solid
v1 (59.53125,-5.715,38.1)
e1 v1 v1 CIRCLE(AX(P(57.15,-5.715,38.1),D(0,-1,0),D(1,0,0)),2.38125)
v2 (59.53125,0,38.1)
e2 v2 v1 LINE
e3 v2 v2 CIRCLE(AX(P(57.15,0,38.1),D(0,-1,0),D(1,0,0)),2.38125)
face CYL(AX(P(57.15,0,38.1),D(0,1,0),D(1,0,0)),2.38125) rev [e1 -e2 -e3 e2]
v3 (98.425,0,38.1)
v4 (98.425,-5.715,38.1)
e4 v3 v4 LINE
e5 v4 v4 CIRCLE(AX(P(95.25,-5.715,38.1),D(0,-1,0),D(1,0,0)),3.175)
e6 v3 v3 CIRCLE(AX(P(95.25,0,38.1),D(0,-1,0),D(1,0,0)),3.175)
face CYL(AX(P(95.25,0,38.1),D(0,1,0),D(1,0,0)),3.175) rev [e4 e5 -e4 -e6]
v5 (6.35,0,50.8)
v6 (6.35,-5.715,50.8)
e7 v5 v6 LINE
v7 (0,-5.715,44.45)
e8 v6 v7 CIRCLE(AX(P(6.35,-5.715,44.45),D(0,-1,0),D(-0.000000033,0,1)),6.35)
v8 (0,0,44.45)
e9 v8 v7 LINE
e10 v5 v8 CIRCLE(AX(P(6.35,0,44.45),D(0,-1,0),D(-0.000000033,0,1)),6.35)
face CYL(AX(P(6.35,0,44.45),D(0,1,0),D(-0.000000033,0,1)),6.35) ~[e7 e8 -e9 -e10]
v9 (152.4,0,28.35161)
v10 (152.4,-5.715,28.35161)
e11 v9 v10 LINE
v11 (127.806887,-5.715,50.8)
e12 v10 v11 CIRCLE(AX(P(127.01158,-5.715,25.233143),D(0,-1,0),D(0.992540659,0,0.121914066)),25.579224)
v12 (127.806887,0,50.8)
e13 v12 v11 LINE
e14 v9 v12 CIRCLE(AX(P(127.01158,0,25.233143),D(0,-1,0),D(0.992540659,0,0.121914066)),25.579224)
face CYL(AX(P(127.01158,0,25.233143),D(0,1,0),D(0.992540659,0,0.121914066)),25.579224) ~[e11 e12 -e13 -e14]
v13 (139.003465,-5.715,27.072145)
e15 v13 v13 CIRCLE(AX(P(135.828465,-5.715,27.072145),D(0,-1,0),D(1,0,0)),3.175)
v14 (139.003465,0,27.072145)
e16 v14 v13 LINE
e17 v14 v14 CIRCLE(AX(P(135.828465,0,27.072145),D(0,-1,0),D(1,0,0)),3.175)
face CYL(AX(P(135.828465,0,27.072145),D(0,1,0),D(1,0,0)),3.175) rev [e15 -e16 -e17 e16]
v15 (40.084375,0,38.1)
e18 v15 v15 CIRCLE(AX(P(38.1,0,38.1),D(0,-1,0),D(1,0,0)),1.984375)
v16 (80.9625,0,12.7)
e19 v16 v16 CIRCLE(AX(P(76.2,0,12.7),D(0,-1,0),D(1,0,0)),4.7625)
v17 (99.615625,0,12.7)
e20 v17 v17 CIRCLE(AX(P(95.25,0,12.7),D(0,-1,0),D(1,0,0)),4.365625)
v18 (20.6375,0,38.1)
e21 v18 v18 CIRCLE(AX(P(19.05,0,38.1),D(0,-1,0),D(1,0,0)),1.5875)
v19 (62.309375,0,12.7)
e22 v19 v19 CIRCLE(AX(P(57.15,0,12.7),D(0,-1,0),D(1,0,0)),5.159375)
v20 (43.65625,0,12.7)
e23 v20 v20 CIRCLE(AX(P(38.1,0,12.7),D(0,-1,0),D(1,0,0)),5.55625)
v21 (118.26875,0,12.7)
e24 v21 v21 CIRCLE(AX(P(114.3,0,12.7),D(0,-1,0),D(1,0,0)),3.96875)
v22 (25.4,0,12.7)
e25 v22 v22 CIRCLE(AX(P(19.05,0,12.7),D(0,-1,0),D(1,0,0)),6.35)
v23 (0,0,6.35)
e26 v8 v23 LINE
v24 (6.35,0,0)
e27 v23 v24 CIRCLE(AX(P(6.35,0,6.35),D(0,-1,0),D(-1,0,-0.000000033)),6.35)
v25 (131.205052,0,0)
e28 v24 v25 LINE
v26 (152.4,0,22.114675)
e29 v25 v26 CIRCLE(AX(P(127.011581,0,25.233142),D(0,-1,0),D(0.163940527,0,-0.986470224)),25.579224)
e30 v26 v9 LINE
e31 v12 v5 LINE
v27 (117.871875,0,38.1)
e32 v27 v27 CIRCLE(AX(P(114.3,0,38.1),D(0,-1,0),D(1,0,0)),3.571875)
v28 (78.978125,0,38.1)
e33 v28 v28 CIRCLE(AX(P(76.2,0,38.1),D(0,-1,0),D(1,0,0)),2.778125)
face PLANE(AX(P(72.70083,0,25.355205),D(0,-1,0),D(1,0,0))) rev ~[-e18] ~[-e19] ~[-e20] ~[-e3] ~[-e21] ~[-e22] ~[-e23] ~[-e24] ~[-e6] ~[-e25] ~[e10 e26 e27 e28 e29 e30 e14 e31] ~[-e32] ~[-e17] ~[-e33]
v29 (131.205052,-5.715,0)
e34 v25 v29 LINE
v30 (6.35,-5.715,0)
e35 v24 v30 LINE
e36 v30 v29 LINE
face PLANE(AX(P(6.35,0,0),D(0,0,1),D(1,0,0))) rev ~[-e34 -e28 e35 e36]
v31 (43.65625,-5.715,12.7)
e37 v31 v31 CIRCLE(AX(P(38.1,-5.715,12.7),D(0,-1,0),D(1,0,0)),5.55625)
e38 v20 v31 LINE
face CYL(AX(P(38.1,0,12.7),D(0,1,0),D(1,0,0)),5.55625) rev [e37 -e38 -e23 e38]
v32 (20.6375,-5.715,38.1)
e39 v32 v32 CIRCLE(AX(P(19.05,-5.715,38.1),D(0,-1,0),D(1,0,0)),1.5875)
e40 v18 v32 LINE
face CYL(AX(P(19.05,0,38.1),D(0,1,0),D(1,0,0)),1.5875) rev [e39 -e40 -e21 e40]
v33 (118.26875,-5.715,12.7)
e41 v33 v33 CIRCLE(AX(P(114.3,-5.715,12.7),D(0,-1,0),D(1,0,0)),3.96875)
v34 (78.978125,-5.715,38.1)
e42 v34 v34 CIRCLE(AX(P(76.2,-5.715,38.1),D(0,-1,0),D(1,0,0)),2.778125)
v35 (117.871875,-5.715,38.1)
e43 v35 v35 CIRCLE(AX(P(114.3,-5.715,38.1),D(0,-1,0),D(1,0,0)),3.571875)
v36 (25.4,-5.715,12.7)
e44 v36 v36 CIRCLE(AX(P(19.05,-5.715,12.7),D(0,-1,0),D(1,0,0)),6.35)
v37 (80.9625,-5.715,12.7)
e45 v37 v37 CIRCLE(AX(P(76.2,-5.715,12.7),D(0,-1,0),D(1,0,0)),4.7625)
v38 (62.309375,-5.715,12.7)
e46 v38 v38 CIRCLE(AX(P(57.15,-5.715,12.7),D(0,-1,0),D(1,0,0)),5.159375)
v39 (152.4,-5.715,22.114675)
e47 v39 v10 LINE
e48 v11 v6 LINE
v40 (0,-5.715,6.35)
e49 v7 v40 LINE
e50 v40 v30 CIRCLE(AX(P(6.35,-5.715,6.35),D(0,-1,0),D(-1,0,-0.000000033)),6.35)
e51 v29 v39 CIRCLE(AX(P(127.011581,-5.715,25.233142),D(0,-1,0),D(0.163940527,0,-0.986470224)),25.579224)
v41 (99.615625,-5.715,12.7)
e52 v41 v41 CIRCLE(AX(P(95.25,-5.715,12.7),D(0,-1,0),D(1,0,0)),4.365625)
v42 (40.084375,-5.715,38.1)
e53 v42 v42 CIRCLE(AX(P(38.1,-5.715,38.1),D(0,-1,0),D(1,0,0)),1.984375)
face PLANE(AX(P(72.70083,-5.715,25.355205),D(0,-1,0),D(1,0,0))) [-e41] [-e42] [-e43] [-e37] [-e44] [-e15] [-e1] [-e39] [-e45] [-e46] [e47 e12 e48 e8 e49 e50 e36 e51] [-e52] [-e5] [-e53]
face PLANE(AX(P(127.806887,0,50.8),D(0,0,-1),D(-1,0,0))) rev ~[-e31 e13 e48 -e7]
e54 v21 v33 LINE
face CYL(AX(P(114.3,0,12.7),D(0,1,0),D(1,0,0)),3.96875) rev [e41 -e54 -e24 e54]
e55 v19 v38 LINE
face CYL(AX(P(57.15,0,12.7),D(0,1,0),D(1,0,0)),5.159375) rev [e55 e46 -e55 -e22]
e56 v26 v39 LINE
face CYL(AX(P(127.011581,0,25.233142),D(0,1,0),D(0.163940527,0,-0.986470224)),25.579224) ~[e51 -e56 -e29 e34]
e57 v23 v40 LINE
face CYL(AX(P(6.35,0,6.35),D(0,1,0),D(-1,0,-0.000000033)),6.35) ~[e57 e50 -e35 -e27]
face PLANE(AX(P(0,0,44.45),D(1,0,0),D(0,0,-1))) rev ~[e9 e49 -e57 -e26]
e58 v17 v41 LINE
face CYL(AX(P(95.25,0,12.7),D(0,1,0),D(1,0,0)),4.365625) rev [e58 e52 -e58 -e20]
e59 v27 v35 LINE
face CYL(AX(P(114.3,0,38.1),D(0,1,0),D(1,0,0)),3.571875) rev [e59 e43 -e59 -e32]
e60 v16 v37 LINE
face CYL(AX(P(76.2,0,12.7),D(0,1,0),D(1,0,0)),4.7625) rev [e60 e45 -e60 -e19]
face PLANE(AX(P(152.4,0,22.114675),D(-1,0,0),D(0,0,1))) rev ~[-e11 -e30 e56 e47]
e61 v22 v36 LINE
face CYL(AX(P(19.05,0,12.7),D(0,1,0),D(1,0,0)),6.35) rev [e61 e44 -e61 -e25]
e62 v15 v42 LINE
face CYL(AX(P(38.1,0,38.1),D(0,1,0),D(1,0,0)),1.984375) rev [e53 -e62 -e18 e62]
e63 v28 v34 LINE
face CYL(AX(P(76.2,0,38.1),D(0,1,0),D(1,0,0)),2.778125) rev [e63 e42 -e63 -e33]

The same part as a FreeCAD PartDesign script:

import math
import FreeCAD as App
import Part
import Sketcher
from FreeCAD import Vector
Q = App.Units.Quantity

doc = App.newDocument("Part")
body = doc.addObject("PartDesign::Body", "Body")

# Sketch on XZ plane
sketch1 = doc.addObject("Sketcher::SketchObject", "Sketch")
body.addObject(sketch1)
sketch1.AttachmentSupport = (doc.XZ_Plane, [""])
sketch1.MapMode = "FlatFace"
sketch1.addGeometry(Part.ArcOfCircle(Part.Circle(Vector(6.4, 6.4, 0), Vector(0, 0, 1), 6.4), math.radians(-180), math.radians(-90)), False)
sketch1.addGeometry(Part.LineSegment(Vector(6.3, 0, 0), Vector(131.2, 0, 0)), False)
sketch1.addGeometry(Part.ArcOfCircle(Part.Circle(Vector(127, 25.2, 0), Vector(0, 0, 1), 25.6), math.radians(-81), math.radians(-7)), False)
sketch1.addGeometry(Part.LineSegment(Vector(152.4, 22.1, 0), Vector(152.4, 28.4, 0)), False)
sketch1.addGeometry(Part.ArcOfCircle(Part.Circle(Vector(127, 25.2, 0), Vector(0, 0, 1), 25.6), math.radians(7), math.radians(88)), False)
sketch1.addGeometry(Part.LineSegment(Vector(127.8, 50.8, 0), Vector(6.3, 50.8, 0)), False)
sketch1.addGeometry(Part.ArcOfCircle(Part.Circle(Vector(6.4, 44.4, 0), Vector(0, 0, 1), 6.4), math.radians(90), math.radians(180)), False)
sketch1.addGeometry(Part.LineSegment(Vector(0, 44.5, 0), Vector(0, 6.3, 0)), False)
sketch1.addGeometry(Part.Circle(Vector(19.1, 12.7, 0), Vector(0, 0, 1), 6.3), False)
sketch1.addGeometry(Part.Circle(Vector(38.1, 12.7, 0), Vector(0, 0, 1), 5.6), False)
sketch1.addGeometry(Part.Circle(Vector(57.1, 12.7, 0), Vector(0, 0, 1), 5.2), False)
sketch1.addGeometry(Part.Circle(Vector(76.2, 12.7, 0), Vector(0, 0, 1), 4.8), False)
sketch1.addGeometry(Part.Circle(Vector(95.2, 12.7, 0), Vector(0, 0, 1), 4.4), False)
sketch1.addGeometry(Part.Circle(Vector(114.3, 12.7, 0), Vector(0, 0, 1), 4), False)
sketch1.addGeometry(Part.Circle(Vector(19.1, 38.1, 0), Vector(0, 0, 1), 1.6), False)
sketch1.addGeometry(Part.Circle(Vector(38.1, 38.1, 0), Vector(0, 0, 1), 2), False)
sketch1.addGeometry(Part.Circle(Vector(57.1, 38.1, 0), Vector(0, 0, 1), 2.4), False)
sketch1.addGeometry(Part.Circle(Vector(135.8, 27.1, 0), Vector(0, 0, 1), 3.2), False)
sketch1.addGeometry(Part.Circle(Vector(76.2, 38.1, 0), Vector(0, 0, 1), 2.8), False)
sketch1.addGeometry(Part.Circle(Vector(95.2, 38.1, 0), Vector(0, 0, 1), 3.2), False)
sketch1.addGeometry(Part.Circle(Vector(114.3, 38.1, 0), Vector(0, 0, 1), 3.6), False)
sketch1.addConstraint(Sketcher.Constraint("Tangent", 0, 2, 1, 1))
sketch1.addConstraint(Sketcher.Constraint("Coincident", 1, 2, 2, 1))
sketch1.addConstraint(Sketcher.Constraint("Coincident", 2, 2, 3, 1))
sketch1.addConstraint(Sketcher.Constraint("Coincident", 3, 2, 4, 1))
sketch1.addConstraint(Sketcher.Constraint("Coincident", 4, 2, 5, 1))
sketch1.addConstraint(Sketcher.Constraint("Tangent", 5, 2, 6, 1))
sketch1.addConstraint(Sketcher.Constraint("Tangent", 6, 2, 7, 1))
sketch1.addConstraint(Sketcher.Constraint("Tangent", 7, 2, 0, 1))
sketch1.addConstraint(Sketcher.Constraint("Horizontal", 1))
sketch1.addConstraint(Sketcher.Constraint("Vertical", 3))
sketch1.addConstraint(Sketcher.Constraint("Horizontal", 5))
sketch1.addConstraint(Sketcher.Constraint("Vertical", 7))
sketch1.addConstraint(Sketcher.Constraint("Coincident", 4, 3, 2, 3))
sketch1.addConstraint(Sketcher.Constraint("Equal", 2, 4))
sketch1.addConstraint(Sketcher.Constraint("Equal", 0, 6))
sketch1.addConstraint(Sketcher.Constraint("Equal", 6, 8))
sketch1.addConstraint(Sketcher.Constraint("Equal", 17, 19))
sketch1.addConstraint(Sketcher.Constraint("PointOnObject", 0, 2, -1))
sketch1.addConstraint(Sketcher.Constraint("PointOnObject", 6, 2, -2))
sketch1.addConstraint(Sketcher.Constraint("Horizontal", 8, 3, 9, 3))
sketch1.addConstraint(Sketcher.Constraint("Horizontal", 9, 3, 10, 3))
sketch1.addConstraint(Sketcher.Constraint("Horizontal", 10, 3, 11, 3))
sketch1.addConstraint(Sketcher.Constraint("Horizontal", 11, 3, 12, 3))
sketch1.addConstraint(Sketcher.Constraint("Horizontal", 12, 3, 13, 3))
sketch1.addConstraint(Sketcher.Constraint("Horizontal", 14, 3, 15, 3))
sketch1.addConstraint(Sketcher.Constraint("Horizontal", 15, 3, 16, 3))
sketch1.addConstraint(Sketcher.Constraint("Horizontal", 16, 3, 18, 3))
sketch1.addConstraint(Sketcher.Constraint("Horizontal", 18, 3, 19, 3))
sketch1.addConstraint(Sketcher.Constraint("Horizontal", 19, 3, 20, 3))
sketch1.addConstraint(Sketcher.Constraint("Vertical", 8, 3, 14, 3))
sketch1.addConstraint(Sketcher.Constraint("Vertical", 9, 3, 15, 3))
sketch1.addConstraint(Sketcher.Constraint("Vertical", 10, 3, 16, 3))
sketch1.addConstraint(Sketcher.Constraint("Vertical", 11, 3, 18, 3))
sketch1.addConstraint(Sketcher.Constraint("Vertical", 12, 3, 19, 3))
sketch1.addConstraint(Sketcher.Constraint("Vertical", 13, 3, 20, 3))
sketch1.addConstraint(Sketcher.Constraint("Diameter", 8, Q("0.5 in")))
sketch1.addConstraint(Sketcher.Constraint("Diameter", 17, Q("0.25 in")))
sketch1.addConstraint(Sketcher.Constraint("Diameter", 9, Q("0.4375 in")))
sketch1.addConstraint(Sketcher.Constraint("Diameter", 10, Q("0.40625 in")))
sketch1.addConstraint(Sketcher.Constraint("Diameter", 11, Q("0.375 in")))
sketch1.addConstraint(Sketcher.Constraint("Diameter", 12, Q("0.34375 in")))
sketch1.addConstraint(Sketcher.Constraint("Diameter", 13, Q("0.3125 in")))
sketch1.addConstraint(Sketcher.Constraint("Diameter", 14, Q("0.125 in")))
sketch1.addConstraint(Sketcher.Constraint("Diameter", 15, Q("0.15625 in")))
sketch1.addConstraint(Sketcher.Constraint("Diameter", 16, Q("0.1875 in")))
sketch1.addConstraint(Sketcher.Constraint("Diameter", 18, Q("0.21875 in")))
sketch1.addConstraint(Sketcher.Constraint("Diameter", 20, Q("0.28125 in")))
sketch1.addConstraint(Sketcher.Constraint("DistanceY", 7, 2, 7, 1, Q("1.5 in")))
sketch1.addConstraint(Sketcher.Constraint("DistanceX", -1, 1, 11, 3, Q("3 in")))
sketch1.addConstraint(Sketcher.Constraint("DistanceX", -1, 1, 2, 2, Q("6 in")))
sketch1.addConstraint(Sketcher.Constraint("DistanceX", 0, 3, 10, 3, Q("2 in")))
sketch1.addConstraint(Sketcher.Constraint("DistanceY", 8, 3, 14, 3, Q("1 in")))
sketch1.addConstraint(Sketcher.Constraint("DistanceY", -1, 1, 8, 3, Q("0.5 in")))
sketch1.addConstraint(Sketcher.Constraint("DistanceX", -1, 1, 9, 3, Q("1.5 in")))
sketch1.addConstraint(Sketcher.Constraint("DistanceX", -1, 1, 13, 3, Q("4.5 in")))
sketch1.addConstraint(Sketcher.Constraint("DistanceX", 0, 3, 8, 3, Q("0.5 in")))
sketch1.addConstraint(Sketcher.Constraint("DistanceX", 10, 3, 12, 3, Q("1.5 in")))
sketch1.addConstraint(Sketcher.Constraint("Radius", 2, 25.579224))
sketch1.addConstraint(Sketcher.Constraint("DistanceX", 1, 1, 1, 2, 124.855052))
sketch1.addConstraint(Sketcher.Constraint("DistanceX", 5, 2, 5, 1, 121.456887))
sketch1.addConstraint(Sketcher.Constraint("DistanceY", 2, 2, 17, 3, 4.95747))
sketch1.addConstraint(Sketcher.Constraint("DistanceX", 4, 2, 17, 3, 8.021578))
pad1 = doc.addObject("PartDesign::Pad", "Pad")
body.addObject(pad1)
pad1.Profile = sketch1
pad1.Length = Q("0.225 in")

doc.recompute()
